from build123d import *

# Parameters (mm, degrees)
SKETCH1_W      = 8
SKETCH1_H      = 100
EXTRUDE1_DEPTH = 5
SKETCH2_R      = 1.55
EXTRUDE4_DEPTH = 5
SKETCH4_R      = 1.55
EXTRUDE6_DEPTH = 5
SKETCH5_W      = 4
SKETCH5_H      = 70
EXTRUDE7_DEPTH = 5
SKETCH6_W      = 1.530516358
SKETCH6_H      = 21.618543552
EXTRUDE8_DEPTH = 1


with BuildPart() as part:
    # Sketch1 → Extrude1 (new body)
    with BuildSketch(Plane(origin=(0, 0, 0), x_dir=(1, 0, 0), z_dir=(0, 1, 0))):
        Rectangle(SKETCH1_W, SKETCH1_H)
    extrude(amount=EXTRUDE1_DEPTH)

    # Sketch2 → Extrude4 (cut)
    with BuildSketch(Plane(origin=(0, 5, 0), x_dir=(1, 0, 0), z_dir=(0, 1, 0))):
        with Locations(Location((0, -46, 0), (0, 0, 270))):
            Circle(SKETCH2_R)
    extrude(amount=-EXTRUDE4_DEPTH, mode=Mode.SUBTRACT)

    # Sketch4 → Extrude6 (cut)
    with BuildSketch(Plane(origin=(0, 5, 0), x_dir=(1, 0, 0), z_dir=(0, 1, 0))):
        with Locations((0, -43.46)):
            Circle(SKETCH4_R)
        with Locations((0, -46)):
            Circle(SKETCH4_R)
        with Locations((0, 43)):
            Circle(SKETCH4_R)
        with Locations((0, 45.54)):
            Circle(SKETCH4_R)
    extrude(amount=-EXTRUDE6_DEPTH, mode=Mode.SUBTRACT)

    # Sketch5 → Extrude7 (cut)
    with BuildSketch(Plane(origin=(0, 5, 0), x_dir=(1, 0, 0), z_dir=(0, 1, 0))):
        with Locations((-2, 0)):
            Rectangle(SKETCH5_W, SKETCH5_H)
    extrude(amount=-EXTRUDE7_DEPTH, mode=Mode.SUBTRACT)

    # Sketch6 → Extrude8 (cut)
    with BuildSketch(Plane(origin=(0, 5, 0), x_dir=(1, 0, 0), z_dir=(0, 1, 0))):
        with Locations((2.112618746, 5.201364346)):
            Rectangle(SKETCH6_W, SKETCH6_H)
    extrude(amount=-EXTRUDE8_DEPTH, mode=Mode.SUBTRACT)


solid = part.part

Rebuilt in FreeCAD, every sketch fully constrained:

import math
import FreeCAD as App
import Part
import Sketcher

V = App.Vector

doc = App.newDocument("Part")
body = doc.addObject("PartDesign::Body", "Body")

# Sketch on XZ plane
sketch1 = body.newObject("Sketcher::SketchObject", "Sketch")
sketch1.AttachmentSupport = (doc.getObject("XZ_Plane"), [""])
sketch1.MapMode = "FlatFace"
sketch1.addGeometry([
    Part.LineSegment(V(-4, -50, 0), V(-4, 50, 0)),
    Part.LineSegment(V(-4, 50, 0), V(4, 50, 0)),
    Part.LineSegment(V(4, 50, 0), V(4, -50, 0)),
    Part.LineSegment(V(4, -50, 0), V(-4, -50, 0)),
], False)
sketch1.addConstraint([
    Sketcher.Constraint("Coincident", 0, 2, 1, 1),
    Sketcher.Constraint("Coincident", 1, 2, 2, 1),
    Sketcher.Constraint("Coincident", 2, 2, 3, 1),
    Sketcher.Constraint("Coincident", 3, 2, 0, 1),
    Sketcher.Constraint("Vertical", 0),
    Sketcher.Constraint("Horizontal", 1),
    Sketcher.Constraint("Vertical", 2),
    Sketcher.Constraint("Horizontal", 3),
    Sketcher.Constraint("Symmetric", 0, 2, 2, 2, -1, 1),
    Sketcher.Constraint("DistanceX", 1, 1, 1, 2, 8.0),
    Sketcher.Constraint("DistanceY", 0, 1, 0, 2, 100.0),
])
pad1 = body.newObject("PartDesign::Pad", "Pad")
pad1.Profile = sketch1
pad1.Length = 5
pad1.Reversed = True

# Sketch on XZ plane
sketch2 = body.newObject("Sketcher::SketchObject", "Sketch001")
sketch2.AttachmentSupport = (doc.getObject("XZ_Plane"), [""])
sketch2.MapMode = "FlatFace"
sketch2.AttachmentOffset = App.Placement(V(0, 0, -5), App.Rotation())
sketch2.addGeometry(Part.Circle(V(0, 46, 0), V(0, 0, 1), 1.55), False)
sketch2.addConstraint([
    Sketcher.Constraint("PointOnObject", 0, 3, -2),
    Sketcher.Constraint("Diameter", 0, 3.1),
    Sketcher.Constraint("DistanceY", -1, 1, 0, 3, 46.0),
])
pocket1 = body.newObject("PartDesign::Pocket", "Pocket")
pocket1.Profile = sketch2
pocket1.Length = 5
pocket1.Reversed = True

# Sketch on XZ plane
sketch3 = body.newObject("Sketcher::SketchObject", "Sketch002")
sketch3.AttachmentSupport = (doc.getObject("XZ_Plane"), [""])
sketch3.MapMode = "FlatFace"
sketch3.AttachmentOffset = App.Placement(V(0, 0, -5), App.Rotation())
sketch3.addGeometry([
    Part.ArcOfCircle(Part.Circle(V(0, 43.46, 0), V(0, 0, 1), 1.55), math.radians(124.979737), math.radians(415.020263)),
    Part.ArcOfCircle(Part.Circle(V(0, 46, 0), V(0, 0, 1), 1.55), math.radians(-55.020263), math.radians(235.020263)),
    Part.ArcOfCircle(Part.Circle(V(0, -43, 0), V(0, 0, 1), 1.55), math.radians(-55.020263), math.radians(235.020263)),
    Part.ArcOfCircle(Part.Circle(V(0, -45.54, 0), V(0, 0, 1), 1.55), math.radians(124.979737), math.radians(415.020263)),
], False)
sketch3.addConstraint([
    Sketcher.Constraint("Coincident", 0, 1, 1, 2),
    Sketcher.Constraint("Coincident", 1, 1, 0, 2),
    Sketcher.Constraint("Coincident", 2, 1, 3, 2),
    Sketcher.Constraint("Coincident", 3, 1, 2, 2),
    Sketcher.Constraint("Equal", 0, 1),
    Sketcher.Constraint("Equal", 1, 2),
    Sketcher.Constraint("Equal", 2, 3),
    Sketcher.Constraint("Symmetric", 0, 1, 1, 1, -2),
    Sketcher.Constraint("Symmetric", 2, 1, 3, 1, -2),
    Sketcher.Constraint("Vertical", 1, 1, 2, 1),
    Sketcher.Constraint("Radius", 0, 1.55),
    Sketcher.Constraint("DistanceY", -1, 1, 1, 3, 46.0),
    Sketcher.Constraint("DistanceY", 2, 3, -1, 1, 43.0),
    Sketcher.Constraint("DistanceY", -1, 1, 0, 3, 43.46),
])
pocket2 = body.newObject("PartDesign::Pocket", "Pocket001")
pocket2.Profile = sketch3
pocket2.Length = 5
pocket2.Reversed = True

# Sketch on XZ plane
sketch4 = body.newObject("Sketcher::SketchObject", "Sketch003")
sketch4.AttachmentSupport = (doc.getObject("XZ_Plane"), [""])
sketch4.MapMode = "FlatFace"
sketch4.AttachmentOffset = App.Placement(V(0, 0, -5), App.Rotation())
sketch4.addGeometry([
    Part.LineSegment(V(-4, -35, 0), V(-4, 35, 0)),
    Part.LineSegment(V(-4, 35, 0), V(0, 35, 0)),
    Part.LineSegment(V(0, 35, 0), V(0, -35, 0)),
    Part.LineSegment(V(0, -35, 0), V(-4, -35, 0)),
], False)
sketch4.addConstraint([
    Sketcher.Constraint("Coincident", 0, 2, 1, 1),
    Sketcher.Constraint("Coincident", 1, 2, 2, 1),
    Sketcher.Constraint("Coincident", 2, 2, 3, 1),
    Sketcher.Constraint("Coincident", 3, 2, 0, 1),
    Sketcher.Constraint("Vertical", 0),
    Sketcher.Constraint("Horizontal", 1),
    Sketcher.Constraint("Vertical", 2),
    Sketcher.Constraint("Horizontal", 3),
    Sketcher.Constraint("Symmetric", 1, 2, 2, 2, -1, 1),
    Sketcher.Constraint("DistanceX", 1, 1, 1, 2, 4.0),
    Sketcher.Constraint("DistanceY", 0, 1, 0, 2, 70.0),
])
pocket3 = body.newObject("PartDesign::Pocket", "Pocket002")
pocket3.Profile = sketch4
pocket3.Length = 5
pocket3.Reversed = True

# Sketch on XZ plane
sketch5 = body.newObject("Sketcher::SketchObject", "Sketch004")
sketch5.AttachmentSupport = (doc.getObject("XZ_Plane"), [""])
sketch5.MapMode = "FlatFace"
sketch5.AttachmentOffset = App.Placement(V(0, 0, -5), App.Rotation())
sketch5.addGeometry([
    Part.LineSegment(V(1.347361, -16.010636, 0), V(1.347361, 5.607907, 0)),
    Part.LineSegment(V(1.347361, 5.607907, 0), V(2.877877, 5.607907, 0)),
    Part.LineSegment(V(2.877877, 5.607907, 0), V(2.877877, -16.010636, 0)),
    Part.LineSegment(V(2.877877, -16.010636, 0), V(1.347361, -16.010636, 0)),
], False)
sketch5.addConstraint([
    Sketcher.Constraint("Coincident", 0, 2, 1, 1),
    Sketcher.Constraint("Coincident", 1, 2, 2, 1),
    Sketcher.Constraint("Coincident", 2, 2, 3, 1),
    Sketcher.Constraint("Coincident", 3, 2, 0, 1),
    Sketcher.Constraint("Vertical", 0),
    Sketcher.Constraint("Horizontal", 1),
    Sketcher.Constraint("Vertical", 2),
    Sketcher.Constraint("Horizontal", 3),
    Sketcher.Constraint("DistanceX", 1, 1, 1, 2, 1.530516),
    Sketcher.Constraint("DistanceY", 0, 1, 0, 2, 21.618544),
    Sketcher.Constraint("DistanceX", -1, 1, 0, 2, 1.347361),
    Sketcher.Constraint("DistanceY", -1, 1, 0, 2, 5.607907),
])
pocket4 = body.newObject("PartDesign::Pocket", "Pocket003")
pocket4.Profile = sketch5
pocket4.Length = 1
pocket4.Reversed = True

doc.recompute()
